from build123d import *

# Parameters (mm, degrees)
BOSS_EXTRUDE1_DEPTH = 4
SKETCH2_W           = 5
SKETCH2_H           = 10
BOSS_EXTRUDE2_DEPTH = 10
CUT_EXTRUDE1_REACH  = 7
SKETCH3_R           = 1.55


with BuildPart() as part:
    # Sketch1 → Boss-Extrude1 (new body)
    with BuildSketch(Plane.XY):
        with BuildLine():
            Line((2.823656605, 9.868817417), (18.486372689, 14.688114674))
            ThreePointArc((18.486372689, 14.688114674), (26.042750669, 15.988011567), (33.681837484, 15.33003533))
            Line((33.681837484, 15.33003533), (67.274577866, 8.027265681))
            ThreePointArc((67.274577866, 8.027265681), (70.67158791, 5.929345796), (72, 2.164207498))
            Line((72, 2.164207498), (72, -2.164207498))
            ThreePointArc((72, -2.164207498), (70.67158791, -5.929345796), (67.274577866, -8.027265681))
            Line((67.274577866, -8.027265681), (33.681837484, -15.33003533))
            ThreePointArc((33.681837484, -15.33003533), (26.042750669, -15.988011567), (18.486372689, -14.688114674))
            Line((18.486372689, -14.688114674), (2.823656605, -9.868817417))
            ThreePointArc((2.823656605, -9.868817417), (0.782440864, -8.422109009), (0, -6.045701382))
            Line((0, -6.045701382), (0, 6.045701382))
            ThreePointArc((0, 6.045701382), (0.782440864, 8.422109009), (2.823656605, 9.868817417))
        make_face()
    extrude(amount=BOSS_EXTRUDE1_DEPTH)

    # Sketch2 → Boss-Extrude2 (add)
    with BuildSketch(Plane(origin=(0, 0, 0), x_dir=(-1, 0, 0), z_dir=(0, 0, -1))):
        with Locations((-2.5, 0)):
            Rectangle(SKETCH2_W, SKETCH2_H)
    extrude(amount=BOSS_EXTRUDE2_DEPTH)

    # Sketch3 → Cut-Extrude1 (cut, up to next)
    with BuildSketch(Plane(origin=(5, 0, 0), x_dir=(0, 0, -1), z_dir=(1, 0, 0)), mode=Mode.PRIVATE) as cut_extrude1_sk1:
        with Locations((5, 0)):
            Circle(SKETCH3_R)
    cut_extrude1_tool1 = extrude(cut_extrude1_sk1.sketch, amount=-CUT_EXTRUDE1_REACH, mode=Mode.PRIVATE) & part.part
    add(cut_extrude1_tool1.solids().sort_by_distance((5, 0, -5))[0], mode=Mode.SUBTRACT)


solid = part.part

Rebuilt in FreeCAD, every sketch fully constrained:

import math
import FreeCAD as App
import Part
import Sketcher
from FreeCAD import Vector
Q = App.Units.Quantity


def add_polygon(sketch, points):
    """Adds a closed chain of lines whose ends are joined by coincident constraints."""
    first, n = sketch.GeometryCount, len(points)
    for a, b in zip(points, points[1:] + points[:1]):
        sketch.addGeometry(Part.LineSegment(App.Vector(*a, 0), App.Vector(*b, 0)), False)
    for i in range(n):
        sketch.addConstraint(Sketcher.Constraint("Coincident", first + i, 2, first + (i + 1) % n, 1))

doc = App.newDocument("Part")
params = doc.addObject("Spreadsheet::Sheet", "Params")
for row, (alias, value) in enumerate([
    ("sketch1_radius", "4 mm"),
    ("sketch1_radius2", "30 mm"),
    ("sketch1_radius3", "6 mm"),
    ("pad1_length", "4 mm"),
    ("sketch2_width", "5 mm"),
    ("sketch2_height", "10 mm"),
    ("pad2_length", "10 mm"),
    ("sketch3_diameter", "3.1 mm"),
], start=1):
    params.set(f"A{row}", alias)
    params.set(f"B{row}", "=" + value)
    params.setAlias(f"B{row}", alias)

body = doc.addObject("PartDesign::Body", "Body")

sketch1 = body.newObject("Sketcher::SketchObject", "Sketch")
sketch1.AttachmentSupport = (doc.getObject("XY_Plane"), [""])
sketch1.MapMode = "FlatFace"
sketch1.addGeometry(Part.LineSegment(Vector(18.486373, 14.688115, 0), Vector(2.823657, 9.868817, 0)), False)
sketch1.addGeometry(Part.ArcOfCircle(Part.Circle(Vector(4, 6.045701, 0), Vector(0, 0, 1), 4), math.radians(107.102729), math.radians(180)), False)
sketch1.addGeometry(Part.LineSegment(Vector(0, 6.045701, 0), Vector(0, -6.045701, 0)), False)
sketch1.addGeometry(Part.ArcOfCircle(Part.Circle(Vector(4, -6.045701, 0), Vector(0, 0, 1), 4), math.radians(180), math.radians(252.897271)), False)
sketch1.addGeometry(Part.LineSegment(Vector(2.823657, -9.868817, 0), Vector(18.486373, -14.688115, 0)), False)
sketch1.addGeometry(Part.ArcOfCircle(Part.Circle(Vector(27.308948, 13.985256, 0), Vector(0, 0, 1), 30), math.radians(-107.102729), math.radians(-77.735226)), False)
sketch1.addGeometry(Part.LineSegment(Vector(33.681837, -15.330035, 0), Vector(67.274578, -8.027266, 0)), False)
sketch1.addGeometry(Part.ArcOfCircle(Part.Circle(Vector(66, -2.164207, 0), Vector(0, 0, 1), 6), math.radians(-77.735226), math.radians(0)), False)
sketch1.addGeometry(Part.LineSegment(Vector(72, -2.164207, 0), Vector(72, 2.164207, 0)), False)
sketch1.addGeometry(Part.ArcOfCircle(Part.Circle(Vector(66, 2.164207, 0), Vector(0, 0, 1), 6), math.radians(0), math.radians(77.735226)), False)
sketch1.addGeometry(Part.LineSegment(Vector(67.274578, 8.027266, 0), Vector(33.681837, 15.330035, 0)), False)
sketch1.addGeometry(Part.ArcOfCircle(Part.Circle(Vector(27.308948, -13.985256, 0), Vector(0, 0, 1), 30), math.radians(77.735226), math.radians(107.102729)), False)
sketch1.addConstraint(Sketcher.Constraint("Tangent", 0, 2, 1, 1))
sketch1.addConstraint(Sketcher.Constraint("Tangent", 1, 2, 2, 1))
sketch1.addConstraint(Sketcher.Constraint("Tangent", 2, 2, 3, 1))
sketch1.addConstraint(Sketcher.Constraint("Tangent", 3, 2, 4, 1))
sketch1.addConstraint(Sketcher.Constraint("Tangent", 4, 2, 5, 1))
sketch1.addConstraint(Sketcher.Constraint("Tangent", 5, 2, 6, 1))
sketch1.addConstraint(Sketcher.Constraint("Tangent", 6, 2, 7, 1))
sketch1.addConstraint(Sketcher.Constraint("Tangent", 7, 2, 8, 1))
sketch1.addConstraint(Sketcher.Constraint("Tangent", 8, 2, 9, 1))
sketch1.addConstraint(Sketcher.Constraint("Tangent", 9, 2, 10, 1))
sketch1.addConstraint(Sketcher.Constraint("Tangent", 10, 2, 11, 1))
sketch1.addConstraint(Sketcher.Constraint("Tangent", 11, 2, 0, 1))
sketch1.addConstraint(Sketcher.Constraint("Vertical", 2))
sketch1.addConstraint(Sketcher.Constraint("Vertical", 8))
sketch1.addConstraint(Sketcher.Constraint("Equal", 1, 3))
sketch1.addConstraint(Sketcher.Constraint("Equal", 7, 9))
sketch1.addConstraint(Sketcher.Constraint("Equal", 5, 11))
sketch1.addConstraint(Sketcher.Constraint("Symmetric", 1, 2, 2, 2, -1, 1))
sketch1.addConstraint(Sketcher.Constraint("Symmetric", 5, 3, 11, 3, -1))
sketch1.addConstraint(Sketcher.Constraint("Vertical", 6, 2, 9, 2))
sketch1.addConstraint(Sketcher.Constraint("Radius", 1, Q("4 mm")))
sketch1.addConstraint(Sketcher.Constraint("Radius", 5, Q("30 mm")))
sketch1.addConstraint(Sketcher.Constraint("Radius", 7, Q("6 mm")))
sketch1.addConstraint(Sketcher.Constraint("DistanceX", -1, 1, 7, 3, Q("66 mm")))
sketch1.addConstraint(Sketcher.Constraint("DistanceY", -1, 1, 1, 3, Q("6.045701 mm")))
sketch1.addConstraint(Sketcher.Constraint("DistanceY", 8, 1, 8, 2, Q("4.328415 mm")))
sketch1.addConstraint(Sketcher.Constraint("DistanceX", -1, 1, 5, 3, Q("27.308948 mm")))
sketch1.addConstraint(Sketcher.Constraint("DistanceY", 9, 3, 5, 3, Q("11.821048 mm")))
sketch1.setExpression("Constraints[20]", "Params.sketch1_radius")
sketch1.setExpression("Constraints[21]", "Params.sketch1_radius2")
sketch1.setExpression("Constraints[22]", "Params.sketch1_radius3")
pad1 = body.newObject("PartDesign::Pad", "Pad")
pad1.Profile = sketch1
pad1.setExpression("Length", "Params.pad1_length")

sketch2 = body.newObject("Sketcher::SketchObject", "Sketch001")
sketch2.AttachmentSupport = (doc.getObject("XY_Plane"), [""])
sketch2.MapMode = "FlatFace"
add_polygon(sketch2, [(5, 5), (5, -5), (0, -5), (0, 5)])
sketch2.addConstraint(Sketcher.Constraint("Vertical", 0))
sketch2.addConstraint(Sketcher.Constraint("Horizontal", 1))
sketch2.addConstraint(Sketcher.Constraint("Vertical", 2))
sketch2.addConstraint(Sketcher.Constraint("Horizontal", 3))
sketch2.addConstraint(Sketcher.Constraint("Symmetric", 1, 2, 2, 2, -1, 1))
sketch2.addConstraint(Sketcher.Constraint("DistanceX", 1, 2, 1, 1, Q("5 mm")))
sketch2.addConstraint(Sketcher.Constraint("DistanceY", 0, 2, 0, 1, Q("10 mm")))
sketch2.setExpression("Constraints[9]", "Params.sketch2_width")
sketch2.setExpression("Constraints[10]", "Params.sketch2_height")
pad2 = body.newObject("PartDesign::Pad", "Pad001")
pad2.Profile = sketch2
pad2.setExpression("Length", "Params.pad2_length")
pad2.Reversed = True

sketch3 = body.newObject("Sketcher::SketchObject", "Sketch002")
sketch3.AttachmentSupport = (doc.getObject("YZ_Plane"), [""])
sketch3.MapMode = "FlatFace"
sketch3.AttachmentOffset = App.Placement(Vector(0, 0, 5), App.Rotation())
sketch3.addGeometry(Part.Circle(Vector(0, -5, 0), Vector(0, 0, 1), 1.55), False)
sketch3.addConstraint(Sketcher.Constraint("PointOnObject", 0, 3, -2))
sketch3.addConstraint(Sketcher.Constraint("Diameter", 0, Q("3.1 mm")))
sketch3.addConstraint(Sketcher.Constraint("DistanceY", 0, 3, -1, 1, Q("5 mm")))
sketch3.setExpression("Constraints[1]", "Params.sketch3_diameter")
pocket1 = body.newObject("PartDesign::Pocket", "Pocket")
pocket1.Profile = sketch3
pocket1.Type = "UpToFirst"

doc.recompute()
